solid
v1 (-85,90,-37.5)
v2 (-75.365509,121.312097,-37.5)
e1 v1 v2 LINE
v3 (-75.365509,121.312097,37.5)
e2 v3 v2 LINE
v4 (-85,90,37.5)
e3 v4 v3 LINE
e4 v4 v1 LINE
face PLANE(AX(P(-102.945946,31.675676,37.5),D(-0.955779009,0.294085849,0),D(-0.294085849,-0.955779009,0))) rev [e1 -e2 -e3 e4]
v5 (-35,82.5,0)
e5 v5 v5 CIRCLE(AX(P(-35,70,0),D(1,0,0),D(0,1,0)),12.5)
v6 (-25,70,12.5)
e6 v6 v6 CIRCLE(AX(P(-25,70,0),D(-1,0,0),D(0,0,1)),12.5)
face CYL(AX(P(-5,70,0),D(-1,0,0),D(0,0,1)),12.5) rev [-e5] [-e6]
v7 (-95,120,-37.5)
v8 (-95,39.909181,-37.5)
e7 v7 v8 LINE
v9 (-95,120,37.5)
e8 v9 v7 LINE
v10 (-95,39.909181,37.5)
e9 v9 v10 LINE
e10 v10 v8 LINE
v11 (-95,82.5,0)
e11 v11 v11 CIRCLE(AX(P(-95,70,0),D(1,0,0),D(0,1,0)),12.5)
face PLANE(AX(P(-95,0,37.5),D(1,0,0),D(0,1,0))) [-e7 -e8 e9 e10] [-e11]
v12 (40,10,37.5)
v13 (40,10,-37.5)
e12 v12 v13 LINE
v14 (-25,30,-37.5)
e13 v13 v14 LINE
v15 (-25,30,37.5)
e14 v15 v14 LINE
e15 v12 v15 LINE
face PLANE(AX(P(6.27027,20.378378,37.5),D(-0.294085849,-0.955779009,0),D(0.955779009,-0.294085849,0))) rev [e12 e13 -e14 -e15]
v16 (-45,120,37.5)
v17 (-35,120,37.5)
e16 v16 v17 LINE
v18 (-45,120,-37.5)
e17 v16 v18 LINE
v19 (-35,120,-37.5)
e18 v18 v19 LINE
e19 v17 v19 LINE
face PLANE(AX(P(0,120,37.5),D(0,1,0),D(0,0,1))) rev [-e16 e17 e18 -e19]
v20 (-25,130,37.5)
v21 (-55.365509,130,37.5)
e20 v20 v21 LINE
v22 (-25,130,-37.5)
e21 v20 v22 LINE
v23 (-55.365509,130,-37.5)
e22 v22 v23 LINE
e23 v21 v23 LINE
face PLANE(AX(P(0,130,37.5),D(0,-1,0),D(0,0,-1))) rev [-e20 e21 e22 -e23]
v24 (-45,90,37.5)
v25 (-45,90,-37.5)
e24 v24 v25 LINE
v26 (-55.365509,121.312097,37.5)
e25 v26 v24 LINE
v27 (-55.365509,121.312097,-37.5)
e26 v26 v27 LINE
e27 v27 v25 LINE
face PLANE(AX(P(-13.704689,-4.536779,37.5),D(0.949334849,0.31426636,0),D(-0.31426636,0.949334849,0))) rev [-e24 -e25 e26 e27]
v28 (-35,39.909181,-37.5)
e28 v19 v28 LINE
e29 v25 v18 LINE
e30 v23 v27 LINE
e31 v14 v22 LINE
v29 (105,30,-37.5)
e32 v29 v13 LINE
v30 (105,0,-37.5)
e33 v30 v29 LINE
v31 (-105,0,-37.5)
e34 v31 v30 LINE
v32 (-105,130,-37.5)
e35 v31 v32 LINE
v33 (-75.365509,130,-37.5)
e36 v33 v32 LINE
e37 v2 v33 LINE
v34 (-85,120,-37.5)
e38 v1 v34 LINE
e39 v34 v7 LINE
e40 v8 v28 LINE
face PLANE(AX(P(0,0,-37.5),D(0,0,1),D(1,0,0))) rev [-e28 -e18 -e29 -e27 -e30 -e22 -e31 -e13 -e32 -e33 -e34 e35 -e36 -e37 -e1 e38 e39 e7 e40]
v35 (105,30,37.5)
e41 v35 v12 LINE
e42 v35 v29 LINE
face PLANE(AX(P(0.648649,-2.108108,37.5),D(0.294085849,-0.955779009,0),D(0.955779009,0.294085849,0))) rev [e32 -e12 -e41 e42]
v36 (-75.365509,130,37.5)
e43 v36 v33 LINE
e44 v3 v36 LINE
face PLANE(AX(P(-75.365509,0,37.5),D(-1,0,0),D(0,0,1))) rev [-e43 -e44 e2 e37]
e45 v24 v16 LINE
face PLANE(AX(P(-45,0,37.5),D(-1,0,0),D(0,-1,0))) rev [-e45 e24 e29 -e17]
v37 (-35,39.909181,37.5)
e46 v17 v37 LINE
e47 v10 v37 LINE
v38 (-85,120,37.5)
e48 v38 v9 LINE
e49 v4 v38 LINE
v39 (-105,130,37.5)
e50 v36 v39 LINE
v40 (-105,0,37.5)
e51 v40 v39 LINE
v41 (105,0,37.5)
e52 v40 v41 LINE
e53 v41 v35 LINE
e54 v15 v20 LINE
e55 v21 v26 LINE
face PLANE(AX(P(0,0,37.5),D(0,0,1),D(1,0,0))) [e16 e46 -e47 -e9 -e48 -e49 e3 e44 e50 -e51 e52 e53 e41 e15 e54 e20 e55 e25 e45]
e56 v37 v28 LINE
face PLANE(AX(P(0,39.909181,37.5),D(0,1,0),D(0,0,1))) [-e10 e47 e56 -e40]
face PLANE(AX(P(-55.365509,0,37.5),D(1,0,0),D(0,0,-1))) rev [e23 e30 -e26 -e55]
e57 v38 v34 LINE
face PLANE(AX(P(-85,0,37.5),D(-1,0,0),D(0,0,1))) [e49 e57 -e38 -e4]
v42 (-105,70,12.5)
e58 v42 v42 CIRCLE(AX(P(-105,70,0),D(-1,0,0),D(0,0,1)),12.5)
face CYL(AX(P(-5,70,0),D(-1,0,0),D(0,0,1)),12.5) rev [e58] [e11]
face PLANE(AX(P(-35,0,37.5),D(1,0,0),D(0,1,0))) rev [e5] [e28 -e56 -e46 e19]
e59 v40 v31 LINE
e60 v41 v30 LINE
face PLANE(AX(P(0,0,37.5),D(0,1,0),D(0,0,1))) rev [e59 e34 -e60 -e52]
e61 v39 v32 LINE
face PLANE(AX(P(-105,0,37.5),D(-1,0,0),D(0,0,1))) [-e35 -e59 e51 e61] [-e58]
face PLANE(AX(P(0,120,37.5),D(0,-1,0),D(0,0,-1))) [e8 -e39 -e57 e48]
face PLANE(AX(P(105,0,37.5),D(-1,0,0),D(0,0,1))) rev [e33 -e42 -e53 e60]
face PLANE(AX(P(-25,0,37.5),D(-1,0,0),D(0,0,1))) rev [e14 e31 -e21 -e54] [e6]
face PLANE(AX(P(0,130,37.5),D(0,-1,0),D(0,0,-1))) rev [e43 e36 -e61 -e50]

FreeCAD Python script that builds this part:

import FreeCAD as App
import Part
import Sketcher

doc = App.newDocument("Part")
params = doc.addObject("Spreadsheet::Sheet", "Params")
for row, (alias, value) in enumerate([
    ("sketch1_width", "60 mm"),
    ("sketch1_width2", "10 mm"),
    ("sketch1_width3", "210 mm"),
    ("sketch1_height", "30 mm"),
    ("sketch1_height2", "130 mm"),
    ("pad1_length", "75 mm"),
    ("sketch2_diameter", "25 mm"),
    ("pocket1_length", "100 mm"),
], start=1):
    params.set(f"A{row}", alias)
    params.set(f"B{row}", "=" + value)
    params.setAlias(f"B{row}", alias)

body = doc.addObject("PartDesign::Body", "Body")

# Sketch on XY plane
sketch1 = doc.addObject("Sketcher::SketchObject", "Sketch")
body.addObject(sketch1)
sketch1.AttachmentSupport = (doc.XY_Plane, [""])
sketch1.MapMode = "FlatFace"
sketch1.addGeometry([
    Part.LineSegment(App.Vector(-35, 40, 0), App.Vector(-95, 40, 0)),  # 0
    Part.LineSegment(App.Vector(-95, 40, 0), App.Vector(-95, 120, 0)),  # 1
    Part.LineSegment(App.Vector(-95, 120, 0), App.Vector(-85, 120, 0)),  # 2
    Part.LineSegment(App.Vector(-85, 120, 0), App.Vector(-85, 90, 0)),  # 3
    Part.LineSegment(App.Vector(-85, 90, 0), App.Vector(-75, 121, 0)),  # 4
    Part.LineSegment(App.Vector(-75, 121, 0), App.Vector(-75, 130, 0)),  # 5
    Part.LineSegment(App.Vector(-75, 130, 0), App.Vector(-105, 130, 0)),  # 6
    Part.LineSegment(App.Vector(-105, 130, 0), App.Vector(-105, 0, 0)),  # 7
    Part.LineSegment(App.Vector(-105, 0, 0), App.Vector(105, 0, 0)),  # 8
    Part.LineSegment(App.Vector(105, 0, 0), App.Vector(105, 30, 0)),  # 9
    Part.LineSegment(App.Vector(105, 30, 0), App.Vector(40, 10, 0)),  # 10
    Part.LineSegment(App.Vector(40, 10, 0), App.Vector(-25, 30, 0)),  # 11
    Part.LineSegment(App.Vector(-25, 30, 0), App.Vector(-25, 130, 0)),  # 12
    Part.LineSegment(App.Vector(-25, 130, 0), App.Vector(-55, 130, 0)),  # 13
    Part.LineSegment(App.Vector(-55, 130, 0), App.Vector(-55, 121, 0)),  # 14
    Part.LineSegment(App.Vector(-55, 121, 0), App.Vector(-45, 90, 0)),  # 15
    Part.LineSegment(App.Vector(-45, 90, 0), App.Vector(-45, 120, 0)),  # 16
    Part.LineSegment(App.Vector(-45, 120, 0), App.Vector(-35, 120, 0)),  # 17
    Part.LineSegment(App.Vector(-35, 120, 0), App.Vector(-35, 40, 0)),  # 18
], False)
sketch1.addConstraint([
    Sketcher.Constraint("Coincident", 0, 2, 1, 1),
    Sketcher.Constraint("Coincident", 1, 2, 2, 1),
    Sketcher.Constraint("Coincident", 2, 2, 3, 1),
    Sketcher.Constraint("Coincident", 3, 2, 4, 1),
    Sketcher.Constraint("Coincident", 4, 2, 5, 1),
    Sketcher.Constraint("Coincident", 5, 2, 6, 1),
    Sketcher.Constraint("Coincident", 6, 2, 7, 1),
    Sketcher.Constraint("Coincident", 7, 2, 8, 1),
    Sketcher.Constraint("Coincident", 8, 2, 9, 1),
    Sketcher.Constraint("Coincident", 9, 2, 10, 1),
    Sketcher.Constraint("Coincident", 10, 2, 11, 1),
    Sketcher.Constraint("Coincident", 11, 2, 12, 1),
    Sketcher.Constraint("Coincident", 12, 2, 13, 1),
    Sketcher.Constraint("Coincident", 13, 2, 14, 1),
    Sketcher.Constraint("Coincident", 14, 2, 15, 1),
    Sketcher.Constraint("Coincident", 15, 2, 16, 1),
    Sketcher.Constraint("Coincident", 16, 2, 17, 1),
    Sketcher.Constraint("Coincident", 17, 2, 18, 1),
    Sketcher.Constraint("Coincident", 18, 2, 0, 1),
    Sketcher.Constraint("Horizontal", 0),
    Sketcher.Constraint("Vertical", 1),
    Sketcher.Constraint("Horizontal", 2),
    Sketcher.Constraint("Vertical", 3),
    Sketcher.Constraint("Vertical", 5),
    Sketcher.Constraint("Horizontal", 6),
    Sketcher.Constraint("Vertical", 7),
    Sketcher.Constraint("Horizontal", 8),
    Sketcher.Constraint("Vertical", 9),
    Sketcher.Constraint("Vertical", 12),
    Sketcher.Constraint("Horizontal", 13),
    Sketcher.Constraint("Vertical", 14),
    Sketcher.Constraint("Vertical", 16),
    Sketcher.Constraint("Horizontal", 17),
    Sketcher.Constraint("Vertical", 18),
    Sketcher.Constraint("Symmetric", 7, 2, 8, 2, -1, 1),
    Sketcher.Constraint("Perpendicular", 4, 11),
    Sketcher.Constraint("Horizontal", 9, 2, 11, 2),
    Sketcher.Constraint("Horizontal", 6, 2, 12, 2),
    Sketcher.Constraint("Horizontal", 4, 2, 14, 2),
    Sketcher.Constraint("Horizontal", 3, 2, 15, 2),
    Sketcher.Constraint("Horizontal", 2, 2, 16, 2),
    Sketcher.Constraint("Equal", 2, 17),
    Sketcher.Constraint("Equal", 3, 9),
    Sketcher.Constraint("Equal", 10, 11),
    Sketcher.Constraint("DistanceX", 0, 2, 0, 1, 60.0),
    Sketcher.Constraint("DistanceX", 2, 1, 2, 2, 10.0),
    Sketcher.Constraint("DistanceX", 8, 1, 8, 2, 210.0),
    Sketcher.Constraint("DistanceY", 3, 2, 3, 1, 30.0),
    Sketcher.Constraint("DistanceY", 7, 2, 7, 1, 130.0),
    Sketcher.Constraint("DistanceX", 0, 2, -1, 1, 95.0),
    Sketcher.Constraint("DistanceY", -1, 1, 1, 2, 120.0),
    Sketcher.Constraint("DistanceX", -1, 1, 10, 2, 40.0),
    Sketcher.Constraint("DistanceY", -1, 1, 10, 2, 10.0),
    Sketcher.Constraint("DistanceX", 5, 2, 13, 2, 20.0),
    Sketcher.Constraint("DistanceX", 6, 2, 6, 1, 29.634491),
    Sketcher.Constraint("DistanceY", 1, 1, 1, 2, 80.090819),
])
sketch1.setExpression("Constraints[44]", "Params.sketch1_width")
sketch1.setExpression("Constraints[45]", "Params.sketch1_width2")
sketch1.setExpression("Constraints[46]", "Params.sketch1_width3")
sketch1.setExpression("Constraints[47]", "Params.sketch1_height")
sketch1.setExpression("Constraints[48]", "Params.sketch1_height2")
pad1 = doc.addObject("PartDesign::Pad", "Pad")
body.addObject(pad1)
pad1.Profile = sketch1
pad1.setExpression("Length", "Params.pad1_length")
pad1.Midplane = True

# Sketch on YZ plane
sketch2 = doc.addObject("Sketcher::SketchObject", "Sketch001")
body.addObject(sketch2)
sketch2.AttachmentSupport = (doc.YZ_Plane, [""])
sketch2.MapMode = "FlatFace"
sketch2.AttachmentOffset = App.Placement(App.Vector(0, 0, -105), App.Rotation())
sketch2.addGeometry(Part.Circle(App.Vector(70, 0, 0), App.Vector(0, 0, 1), 12), False)
sketch2.addConstraint([
    Sketcher.Constraint("PointOnObject", 0, 3, -1),
    Sketcher.Constraint("Diameter", 0, 25.0),
    Sketcher.Constraint("DistanceX", -1, 1, 0, 3, 70.0),
])
sketch2.setExpression("Constraints[1]", "Params.sketch2_diameter")
pocket1 = doc.addObject("PartDesign::Pocket", "Pocket")
body.addObject(pocket1)
pocket1.Profile = sketch2
pocket1.setExpression("Length", "Params.pocket1_length")
pocket1.Reversed = True

doc.recompute()
